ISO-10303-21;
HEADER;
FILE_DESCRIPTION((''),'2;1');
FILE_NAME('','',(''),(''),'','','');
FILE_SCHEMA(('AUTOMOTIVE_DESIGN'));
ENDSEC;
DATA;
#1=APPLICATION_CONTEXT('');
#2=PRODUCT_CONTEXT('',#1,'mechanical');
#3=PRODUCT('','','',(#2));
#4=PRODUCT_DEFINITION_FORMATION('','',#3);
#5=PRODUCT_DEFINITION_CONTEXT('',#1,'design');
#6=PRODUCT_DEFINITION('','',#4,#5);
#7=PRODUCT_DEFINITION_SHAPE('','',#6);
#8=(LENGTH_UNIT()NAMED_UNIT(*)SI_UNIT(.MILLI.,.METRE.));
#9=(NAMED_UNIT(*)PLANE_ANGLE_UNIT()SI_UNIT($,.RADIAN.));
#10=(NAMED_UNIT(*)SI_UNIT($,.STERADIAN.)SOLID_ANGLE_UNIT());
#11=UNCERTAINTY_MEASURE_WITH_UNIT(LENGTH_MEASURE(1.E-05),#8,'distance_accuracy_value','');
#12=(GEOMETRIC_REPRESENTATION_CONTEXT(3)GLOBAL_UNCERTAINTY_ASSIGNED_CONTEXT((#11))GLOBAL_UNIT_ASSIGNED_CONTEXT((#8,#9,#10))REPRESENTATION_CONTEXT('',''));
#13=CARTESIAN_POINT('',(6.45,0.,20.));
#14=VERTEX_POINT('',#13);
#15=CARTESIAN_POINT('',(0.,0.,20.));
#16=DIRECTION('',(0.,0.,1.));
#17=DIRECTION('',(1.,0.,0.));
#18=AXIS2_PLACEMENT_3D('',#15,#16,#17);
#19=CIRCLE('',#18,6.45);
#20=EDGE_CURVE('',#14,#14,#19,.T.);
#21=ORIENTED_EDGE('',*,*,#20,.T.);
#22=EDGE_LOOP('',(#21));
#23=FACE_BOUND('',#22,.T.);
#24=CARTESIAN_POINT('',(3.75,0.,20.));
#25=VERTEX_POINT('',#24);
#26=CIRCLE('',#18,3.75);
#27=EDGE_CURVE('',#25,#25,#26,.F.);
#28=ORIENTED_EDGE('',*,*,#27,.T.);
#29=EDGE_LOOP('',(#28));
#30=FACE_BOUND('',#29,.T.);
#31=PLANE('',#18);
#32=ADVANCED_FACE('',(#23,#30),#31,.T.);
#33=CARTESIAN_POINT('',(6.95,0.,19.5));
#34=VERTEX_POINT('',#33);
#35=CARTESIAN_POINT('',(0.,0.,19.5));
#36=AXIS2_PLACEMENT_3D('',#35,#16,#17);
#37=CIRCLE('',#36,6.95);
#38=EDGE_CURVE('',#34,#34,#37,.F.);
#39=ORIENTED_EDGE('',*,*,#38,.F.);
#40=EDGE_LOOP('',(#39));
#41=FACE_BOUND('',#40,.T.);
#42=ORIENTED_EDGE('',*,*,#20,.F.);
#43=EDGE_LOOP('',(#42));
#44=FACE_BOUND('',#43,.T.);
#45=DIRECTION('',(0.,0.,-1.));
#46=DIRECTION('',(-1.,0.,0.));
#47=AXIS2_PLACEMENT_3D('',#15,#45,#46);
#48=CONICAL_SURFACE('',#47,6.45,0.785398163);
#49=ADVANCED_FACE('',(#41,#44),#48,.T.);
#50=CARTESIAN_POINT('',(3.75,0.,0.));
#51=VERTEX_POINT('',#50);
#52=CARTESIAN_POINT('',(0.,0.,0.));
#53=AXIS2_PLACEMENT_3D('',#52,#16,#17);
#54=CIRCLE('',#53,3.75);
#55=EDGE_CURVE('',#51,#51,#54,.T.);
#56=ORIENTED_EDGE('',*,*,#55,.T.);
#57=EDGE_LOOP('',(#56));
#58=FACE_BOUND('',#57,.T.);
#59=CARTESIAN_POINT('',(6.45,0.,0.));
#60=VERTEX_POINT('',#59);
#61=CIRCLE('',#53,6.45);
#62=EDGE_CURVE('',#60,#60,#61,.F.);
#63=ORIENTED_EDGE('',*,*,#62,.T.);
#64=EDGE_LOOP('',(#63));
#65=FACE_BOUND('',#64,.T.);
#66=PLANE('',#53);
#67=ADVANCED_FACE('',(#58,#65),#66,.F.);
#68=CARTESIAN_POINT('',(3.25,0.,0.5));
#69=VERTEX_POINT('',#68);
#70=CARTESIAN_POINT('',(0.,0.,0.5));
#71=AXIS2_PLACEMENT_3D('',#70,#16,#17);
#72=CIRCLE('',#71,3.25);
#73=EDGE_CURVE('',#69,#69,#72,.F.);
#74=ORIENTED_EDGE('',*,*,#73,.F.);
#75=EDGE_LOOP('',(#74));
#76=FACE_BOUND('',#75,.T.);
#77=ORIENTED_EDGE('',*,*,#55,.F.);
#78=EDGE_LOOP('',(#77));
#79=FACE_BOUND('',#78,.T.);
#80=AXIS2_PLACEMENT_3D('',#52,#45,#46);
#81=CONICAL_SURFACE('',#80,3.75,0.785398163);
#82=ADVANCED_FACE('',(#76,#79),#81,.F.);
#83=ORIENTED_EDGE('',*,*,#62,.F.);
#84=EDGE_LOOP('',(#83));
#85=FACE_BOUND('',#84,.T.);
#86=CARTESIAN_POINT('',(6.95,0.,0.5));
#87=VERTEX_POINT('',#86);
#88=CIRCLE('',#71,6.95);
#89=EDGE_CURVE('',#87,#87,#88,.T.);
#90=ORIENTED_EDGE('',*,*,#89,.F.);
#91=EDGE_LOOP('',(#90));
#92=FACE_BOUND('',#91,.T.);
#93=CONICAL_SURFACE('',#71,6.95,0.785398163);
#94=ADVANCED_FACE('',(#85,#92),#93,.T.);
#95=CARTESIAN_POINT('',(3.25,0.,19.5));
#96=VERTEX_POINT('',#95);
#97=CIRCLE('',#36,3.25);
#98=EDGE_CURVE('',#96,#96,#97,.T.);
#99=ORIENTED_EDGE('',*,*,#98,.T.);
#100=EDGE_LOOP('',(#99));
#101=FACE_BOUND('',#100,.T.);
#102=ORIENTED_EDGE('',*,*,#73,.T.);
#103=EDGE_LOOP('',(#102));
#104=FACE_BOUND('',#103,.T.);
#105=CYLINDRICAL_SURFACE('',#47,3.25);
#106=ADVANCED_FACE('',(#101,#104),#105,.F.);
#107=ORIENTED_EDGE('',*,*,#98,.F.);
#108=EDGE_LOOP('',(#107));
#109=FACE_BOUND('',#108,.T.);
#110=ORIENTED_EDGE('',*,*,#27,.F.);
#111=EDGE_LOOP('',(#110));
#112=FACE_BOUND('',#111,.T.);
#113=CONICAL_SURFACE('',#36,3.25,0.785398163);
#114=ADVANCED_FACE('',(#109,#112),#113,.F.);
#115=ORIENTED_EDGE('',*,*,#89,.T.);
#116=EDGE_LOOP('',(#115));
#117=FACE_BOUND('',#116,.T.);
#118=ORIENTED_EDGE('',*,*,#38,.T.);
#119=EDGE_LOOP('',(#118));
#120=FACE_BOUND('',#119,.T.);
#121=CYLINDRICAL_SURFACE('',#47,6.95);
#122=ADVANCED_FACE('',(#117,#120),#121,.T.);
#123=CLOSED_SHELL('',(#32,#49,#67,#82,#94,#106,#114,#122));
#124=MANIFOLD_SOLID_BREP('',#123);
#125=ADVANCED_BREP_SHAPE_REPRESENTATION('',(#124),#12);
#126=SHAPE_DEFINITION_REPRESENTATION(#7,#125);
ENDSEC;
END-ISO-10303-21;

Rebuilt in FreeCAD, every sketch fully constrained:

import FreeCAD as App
import Part
import Sketcher

V = App.Vector


def edges_at(feature, points):
    """Names of the edges that pass closest to the given points."""
    edges = feature.Shape.Edges
    near = lambda p: min(range(len(edges)), key=lambda i: edges[i].distToShape(Part.Vertex(*p))[0])
    return sorted({f"Edge{near(p) + 1}" for p in points})

doc = App.newDocument("Part")
body = doc.addObject("PartDesign::Body", "Body")

sketch1 = body.newObject("Sketcher::SketchObject", "Sketch")
sketch1.AttachmentSupport = (doc.getObject("XY_Plane"), [""])
sketch1.MapMode = "FlatFace"
sketch1.addGeometry(Part.Circle(V(0, 0, 0), V(0, 0, 1), 6.95), False)
sketch1.addGeometry(Part.Circle(V(0, 0, 0), V(0, 0, 1), 3.25), False)
sketch1.addConstraint(Sketcher.Constraint("Coincident", 0, 3, -1, 1))
sketch1.addConstraint(Sketcher.Constraint("Coincident", 1, 3, -1, 1))
sketch1.addConstraint(Sketcher.Constraint("Diameter", 0, 13.9))
sketch1.addConstraint(Sketcher.Constraint("Diameter", 1, 6.5))
pad1 = body.newObject("PartDesign::Pad", "Pad")
pad1.Profile = sketch1
pad1.Length = 20
doc.recompute()

chamfer = body.newObject("PartDesign::Chamfer", "Chamfer")
chamfer.Base = (pad1, edges_at(pad1, [
    (-6.95, 0, 0),
    (-6.95, 0, 20),
    (-3.25, 0, 0),
    (-3.25, 0, 20),
]))
chamfer.Size = 0.5

doc.recompute()
